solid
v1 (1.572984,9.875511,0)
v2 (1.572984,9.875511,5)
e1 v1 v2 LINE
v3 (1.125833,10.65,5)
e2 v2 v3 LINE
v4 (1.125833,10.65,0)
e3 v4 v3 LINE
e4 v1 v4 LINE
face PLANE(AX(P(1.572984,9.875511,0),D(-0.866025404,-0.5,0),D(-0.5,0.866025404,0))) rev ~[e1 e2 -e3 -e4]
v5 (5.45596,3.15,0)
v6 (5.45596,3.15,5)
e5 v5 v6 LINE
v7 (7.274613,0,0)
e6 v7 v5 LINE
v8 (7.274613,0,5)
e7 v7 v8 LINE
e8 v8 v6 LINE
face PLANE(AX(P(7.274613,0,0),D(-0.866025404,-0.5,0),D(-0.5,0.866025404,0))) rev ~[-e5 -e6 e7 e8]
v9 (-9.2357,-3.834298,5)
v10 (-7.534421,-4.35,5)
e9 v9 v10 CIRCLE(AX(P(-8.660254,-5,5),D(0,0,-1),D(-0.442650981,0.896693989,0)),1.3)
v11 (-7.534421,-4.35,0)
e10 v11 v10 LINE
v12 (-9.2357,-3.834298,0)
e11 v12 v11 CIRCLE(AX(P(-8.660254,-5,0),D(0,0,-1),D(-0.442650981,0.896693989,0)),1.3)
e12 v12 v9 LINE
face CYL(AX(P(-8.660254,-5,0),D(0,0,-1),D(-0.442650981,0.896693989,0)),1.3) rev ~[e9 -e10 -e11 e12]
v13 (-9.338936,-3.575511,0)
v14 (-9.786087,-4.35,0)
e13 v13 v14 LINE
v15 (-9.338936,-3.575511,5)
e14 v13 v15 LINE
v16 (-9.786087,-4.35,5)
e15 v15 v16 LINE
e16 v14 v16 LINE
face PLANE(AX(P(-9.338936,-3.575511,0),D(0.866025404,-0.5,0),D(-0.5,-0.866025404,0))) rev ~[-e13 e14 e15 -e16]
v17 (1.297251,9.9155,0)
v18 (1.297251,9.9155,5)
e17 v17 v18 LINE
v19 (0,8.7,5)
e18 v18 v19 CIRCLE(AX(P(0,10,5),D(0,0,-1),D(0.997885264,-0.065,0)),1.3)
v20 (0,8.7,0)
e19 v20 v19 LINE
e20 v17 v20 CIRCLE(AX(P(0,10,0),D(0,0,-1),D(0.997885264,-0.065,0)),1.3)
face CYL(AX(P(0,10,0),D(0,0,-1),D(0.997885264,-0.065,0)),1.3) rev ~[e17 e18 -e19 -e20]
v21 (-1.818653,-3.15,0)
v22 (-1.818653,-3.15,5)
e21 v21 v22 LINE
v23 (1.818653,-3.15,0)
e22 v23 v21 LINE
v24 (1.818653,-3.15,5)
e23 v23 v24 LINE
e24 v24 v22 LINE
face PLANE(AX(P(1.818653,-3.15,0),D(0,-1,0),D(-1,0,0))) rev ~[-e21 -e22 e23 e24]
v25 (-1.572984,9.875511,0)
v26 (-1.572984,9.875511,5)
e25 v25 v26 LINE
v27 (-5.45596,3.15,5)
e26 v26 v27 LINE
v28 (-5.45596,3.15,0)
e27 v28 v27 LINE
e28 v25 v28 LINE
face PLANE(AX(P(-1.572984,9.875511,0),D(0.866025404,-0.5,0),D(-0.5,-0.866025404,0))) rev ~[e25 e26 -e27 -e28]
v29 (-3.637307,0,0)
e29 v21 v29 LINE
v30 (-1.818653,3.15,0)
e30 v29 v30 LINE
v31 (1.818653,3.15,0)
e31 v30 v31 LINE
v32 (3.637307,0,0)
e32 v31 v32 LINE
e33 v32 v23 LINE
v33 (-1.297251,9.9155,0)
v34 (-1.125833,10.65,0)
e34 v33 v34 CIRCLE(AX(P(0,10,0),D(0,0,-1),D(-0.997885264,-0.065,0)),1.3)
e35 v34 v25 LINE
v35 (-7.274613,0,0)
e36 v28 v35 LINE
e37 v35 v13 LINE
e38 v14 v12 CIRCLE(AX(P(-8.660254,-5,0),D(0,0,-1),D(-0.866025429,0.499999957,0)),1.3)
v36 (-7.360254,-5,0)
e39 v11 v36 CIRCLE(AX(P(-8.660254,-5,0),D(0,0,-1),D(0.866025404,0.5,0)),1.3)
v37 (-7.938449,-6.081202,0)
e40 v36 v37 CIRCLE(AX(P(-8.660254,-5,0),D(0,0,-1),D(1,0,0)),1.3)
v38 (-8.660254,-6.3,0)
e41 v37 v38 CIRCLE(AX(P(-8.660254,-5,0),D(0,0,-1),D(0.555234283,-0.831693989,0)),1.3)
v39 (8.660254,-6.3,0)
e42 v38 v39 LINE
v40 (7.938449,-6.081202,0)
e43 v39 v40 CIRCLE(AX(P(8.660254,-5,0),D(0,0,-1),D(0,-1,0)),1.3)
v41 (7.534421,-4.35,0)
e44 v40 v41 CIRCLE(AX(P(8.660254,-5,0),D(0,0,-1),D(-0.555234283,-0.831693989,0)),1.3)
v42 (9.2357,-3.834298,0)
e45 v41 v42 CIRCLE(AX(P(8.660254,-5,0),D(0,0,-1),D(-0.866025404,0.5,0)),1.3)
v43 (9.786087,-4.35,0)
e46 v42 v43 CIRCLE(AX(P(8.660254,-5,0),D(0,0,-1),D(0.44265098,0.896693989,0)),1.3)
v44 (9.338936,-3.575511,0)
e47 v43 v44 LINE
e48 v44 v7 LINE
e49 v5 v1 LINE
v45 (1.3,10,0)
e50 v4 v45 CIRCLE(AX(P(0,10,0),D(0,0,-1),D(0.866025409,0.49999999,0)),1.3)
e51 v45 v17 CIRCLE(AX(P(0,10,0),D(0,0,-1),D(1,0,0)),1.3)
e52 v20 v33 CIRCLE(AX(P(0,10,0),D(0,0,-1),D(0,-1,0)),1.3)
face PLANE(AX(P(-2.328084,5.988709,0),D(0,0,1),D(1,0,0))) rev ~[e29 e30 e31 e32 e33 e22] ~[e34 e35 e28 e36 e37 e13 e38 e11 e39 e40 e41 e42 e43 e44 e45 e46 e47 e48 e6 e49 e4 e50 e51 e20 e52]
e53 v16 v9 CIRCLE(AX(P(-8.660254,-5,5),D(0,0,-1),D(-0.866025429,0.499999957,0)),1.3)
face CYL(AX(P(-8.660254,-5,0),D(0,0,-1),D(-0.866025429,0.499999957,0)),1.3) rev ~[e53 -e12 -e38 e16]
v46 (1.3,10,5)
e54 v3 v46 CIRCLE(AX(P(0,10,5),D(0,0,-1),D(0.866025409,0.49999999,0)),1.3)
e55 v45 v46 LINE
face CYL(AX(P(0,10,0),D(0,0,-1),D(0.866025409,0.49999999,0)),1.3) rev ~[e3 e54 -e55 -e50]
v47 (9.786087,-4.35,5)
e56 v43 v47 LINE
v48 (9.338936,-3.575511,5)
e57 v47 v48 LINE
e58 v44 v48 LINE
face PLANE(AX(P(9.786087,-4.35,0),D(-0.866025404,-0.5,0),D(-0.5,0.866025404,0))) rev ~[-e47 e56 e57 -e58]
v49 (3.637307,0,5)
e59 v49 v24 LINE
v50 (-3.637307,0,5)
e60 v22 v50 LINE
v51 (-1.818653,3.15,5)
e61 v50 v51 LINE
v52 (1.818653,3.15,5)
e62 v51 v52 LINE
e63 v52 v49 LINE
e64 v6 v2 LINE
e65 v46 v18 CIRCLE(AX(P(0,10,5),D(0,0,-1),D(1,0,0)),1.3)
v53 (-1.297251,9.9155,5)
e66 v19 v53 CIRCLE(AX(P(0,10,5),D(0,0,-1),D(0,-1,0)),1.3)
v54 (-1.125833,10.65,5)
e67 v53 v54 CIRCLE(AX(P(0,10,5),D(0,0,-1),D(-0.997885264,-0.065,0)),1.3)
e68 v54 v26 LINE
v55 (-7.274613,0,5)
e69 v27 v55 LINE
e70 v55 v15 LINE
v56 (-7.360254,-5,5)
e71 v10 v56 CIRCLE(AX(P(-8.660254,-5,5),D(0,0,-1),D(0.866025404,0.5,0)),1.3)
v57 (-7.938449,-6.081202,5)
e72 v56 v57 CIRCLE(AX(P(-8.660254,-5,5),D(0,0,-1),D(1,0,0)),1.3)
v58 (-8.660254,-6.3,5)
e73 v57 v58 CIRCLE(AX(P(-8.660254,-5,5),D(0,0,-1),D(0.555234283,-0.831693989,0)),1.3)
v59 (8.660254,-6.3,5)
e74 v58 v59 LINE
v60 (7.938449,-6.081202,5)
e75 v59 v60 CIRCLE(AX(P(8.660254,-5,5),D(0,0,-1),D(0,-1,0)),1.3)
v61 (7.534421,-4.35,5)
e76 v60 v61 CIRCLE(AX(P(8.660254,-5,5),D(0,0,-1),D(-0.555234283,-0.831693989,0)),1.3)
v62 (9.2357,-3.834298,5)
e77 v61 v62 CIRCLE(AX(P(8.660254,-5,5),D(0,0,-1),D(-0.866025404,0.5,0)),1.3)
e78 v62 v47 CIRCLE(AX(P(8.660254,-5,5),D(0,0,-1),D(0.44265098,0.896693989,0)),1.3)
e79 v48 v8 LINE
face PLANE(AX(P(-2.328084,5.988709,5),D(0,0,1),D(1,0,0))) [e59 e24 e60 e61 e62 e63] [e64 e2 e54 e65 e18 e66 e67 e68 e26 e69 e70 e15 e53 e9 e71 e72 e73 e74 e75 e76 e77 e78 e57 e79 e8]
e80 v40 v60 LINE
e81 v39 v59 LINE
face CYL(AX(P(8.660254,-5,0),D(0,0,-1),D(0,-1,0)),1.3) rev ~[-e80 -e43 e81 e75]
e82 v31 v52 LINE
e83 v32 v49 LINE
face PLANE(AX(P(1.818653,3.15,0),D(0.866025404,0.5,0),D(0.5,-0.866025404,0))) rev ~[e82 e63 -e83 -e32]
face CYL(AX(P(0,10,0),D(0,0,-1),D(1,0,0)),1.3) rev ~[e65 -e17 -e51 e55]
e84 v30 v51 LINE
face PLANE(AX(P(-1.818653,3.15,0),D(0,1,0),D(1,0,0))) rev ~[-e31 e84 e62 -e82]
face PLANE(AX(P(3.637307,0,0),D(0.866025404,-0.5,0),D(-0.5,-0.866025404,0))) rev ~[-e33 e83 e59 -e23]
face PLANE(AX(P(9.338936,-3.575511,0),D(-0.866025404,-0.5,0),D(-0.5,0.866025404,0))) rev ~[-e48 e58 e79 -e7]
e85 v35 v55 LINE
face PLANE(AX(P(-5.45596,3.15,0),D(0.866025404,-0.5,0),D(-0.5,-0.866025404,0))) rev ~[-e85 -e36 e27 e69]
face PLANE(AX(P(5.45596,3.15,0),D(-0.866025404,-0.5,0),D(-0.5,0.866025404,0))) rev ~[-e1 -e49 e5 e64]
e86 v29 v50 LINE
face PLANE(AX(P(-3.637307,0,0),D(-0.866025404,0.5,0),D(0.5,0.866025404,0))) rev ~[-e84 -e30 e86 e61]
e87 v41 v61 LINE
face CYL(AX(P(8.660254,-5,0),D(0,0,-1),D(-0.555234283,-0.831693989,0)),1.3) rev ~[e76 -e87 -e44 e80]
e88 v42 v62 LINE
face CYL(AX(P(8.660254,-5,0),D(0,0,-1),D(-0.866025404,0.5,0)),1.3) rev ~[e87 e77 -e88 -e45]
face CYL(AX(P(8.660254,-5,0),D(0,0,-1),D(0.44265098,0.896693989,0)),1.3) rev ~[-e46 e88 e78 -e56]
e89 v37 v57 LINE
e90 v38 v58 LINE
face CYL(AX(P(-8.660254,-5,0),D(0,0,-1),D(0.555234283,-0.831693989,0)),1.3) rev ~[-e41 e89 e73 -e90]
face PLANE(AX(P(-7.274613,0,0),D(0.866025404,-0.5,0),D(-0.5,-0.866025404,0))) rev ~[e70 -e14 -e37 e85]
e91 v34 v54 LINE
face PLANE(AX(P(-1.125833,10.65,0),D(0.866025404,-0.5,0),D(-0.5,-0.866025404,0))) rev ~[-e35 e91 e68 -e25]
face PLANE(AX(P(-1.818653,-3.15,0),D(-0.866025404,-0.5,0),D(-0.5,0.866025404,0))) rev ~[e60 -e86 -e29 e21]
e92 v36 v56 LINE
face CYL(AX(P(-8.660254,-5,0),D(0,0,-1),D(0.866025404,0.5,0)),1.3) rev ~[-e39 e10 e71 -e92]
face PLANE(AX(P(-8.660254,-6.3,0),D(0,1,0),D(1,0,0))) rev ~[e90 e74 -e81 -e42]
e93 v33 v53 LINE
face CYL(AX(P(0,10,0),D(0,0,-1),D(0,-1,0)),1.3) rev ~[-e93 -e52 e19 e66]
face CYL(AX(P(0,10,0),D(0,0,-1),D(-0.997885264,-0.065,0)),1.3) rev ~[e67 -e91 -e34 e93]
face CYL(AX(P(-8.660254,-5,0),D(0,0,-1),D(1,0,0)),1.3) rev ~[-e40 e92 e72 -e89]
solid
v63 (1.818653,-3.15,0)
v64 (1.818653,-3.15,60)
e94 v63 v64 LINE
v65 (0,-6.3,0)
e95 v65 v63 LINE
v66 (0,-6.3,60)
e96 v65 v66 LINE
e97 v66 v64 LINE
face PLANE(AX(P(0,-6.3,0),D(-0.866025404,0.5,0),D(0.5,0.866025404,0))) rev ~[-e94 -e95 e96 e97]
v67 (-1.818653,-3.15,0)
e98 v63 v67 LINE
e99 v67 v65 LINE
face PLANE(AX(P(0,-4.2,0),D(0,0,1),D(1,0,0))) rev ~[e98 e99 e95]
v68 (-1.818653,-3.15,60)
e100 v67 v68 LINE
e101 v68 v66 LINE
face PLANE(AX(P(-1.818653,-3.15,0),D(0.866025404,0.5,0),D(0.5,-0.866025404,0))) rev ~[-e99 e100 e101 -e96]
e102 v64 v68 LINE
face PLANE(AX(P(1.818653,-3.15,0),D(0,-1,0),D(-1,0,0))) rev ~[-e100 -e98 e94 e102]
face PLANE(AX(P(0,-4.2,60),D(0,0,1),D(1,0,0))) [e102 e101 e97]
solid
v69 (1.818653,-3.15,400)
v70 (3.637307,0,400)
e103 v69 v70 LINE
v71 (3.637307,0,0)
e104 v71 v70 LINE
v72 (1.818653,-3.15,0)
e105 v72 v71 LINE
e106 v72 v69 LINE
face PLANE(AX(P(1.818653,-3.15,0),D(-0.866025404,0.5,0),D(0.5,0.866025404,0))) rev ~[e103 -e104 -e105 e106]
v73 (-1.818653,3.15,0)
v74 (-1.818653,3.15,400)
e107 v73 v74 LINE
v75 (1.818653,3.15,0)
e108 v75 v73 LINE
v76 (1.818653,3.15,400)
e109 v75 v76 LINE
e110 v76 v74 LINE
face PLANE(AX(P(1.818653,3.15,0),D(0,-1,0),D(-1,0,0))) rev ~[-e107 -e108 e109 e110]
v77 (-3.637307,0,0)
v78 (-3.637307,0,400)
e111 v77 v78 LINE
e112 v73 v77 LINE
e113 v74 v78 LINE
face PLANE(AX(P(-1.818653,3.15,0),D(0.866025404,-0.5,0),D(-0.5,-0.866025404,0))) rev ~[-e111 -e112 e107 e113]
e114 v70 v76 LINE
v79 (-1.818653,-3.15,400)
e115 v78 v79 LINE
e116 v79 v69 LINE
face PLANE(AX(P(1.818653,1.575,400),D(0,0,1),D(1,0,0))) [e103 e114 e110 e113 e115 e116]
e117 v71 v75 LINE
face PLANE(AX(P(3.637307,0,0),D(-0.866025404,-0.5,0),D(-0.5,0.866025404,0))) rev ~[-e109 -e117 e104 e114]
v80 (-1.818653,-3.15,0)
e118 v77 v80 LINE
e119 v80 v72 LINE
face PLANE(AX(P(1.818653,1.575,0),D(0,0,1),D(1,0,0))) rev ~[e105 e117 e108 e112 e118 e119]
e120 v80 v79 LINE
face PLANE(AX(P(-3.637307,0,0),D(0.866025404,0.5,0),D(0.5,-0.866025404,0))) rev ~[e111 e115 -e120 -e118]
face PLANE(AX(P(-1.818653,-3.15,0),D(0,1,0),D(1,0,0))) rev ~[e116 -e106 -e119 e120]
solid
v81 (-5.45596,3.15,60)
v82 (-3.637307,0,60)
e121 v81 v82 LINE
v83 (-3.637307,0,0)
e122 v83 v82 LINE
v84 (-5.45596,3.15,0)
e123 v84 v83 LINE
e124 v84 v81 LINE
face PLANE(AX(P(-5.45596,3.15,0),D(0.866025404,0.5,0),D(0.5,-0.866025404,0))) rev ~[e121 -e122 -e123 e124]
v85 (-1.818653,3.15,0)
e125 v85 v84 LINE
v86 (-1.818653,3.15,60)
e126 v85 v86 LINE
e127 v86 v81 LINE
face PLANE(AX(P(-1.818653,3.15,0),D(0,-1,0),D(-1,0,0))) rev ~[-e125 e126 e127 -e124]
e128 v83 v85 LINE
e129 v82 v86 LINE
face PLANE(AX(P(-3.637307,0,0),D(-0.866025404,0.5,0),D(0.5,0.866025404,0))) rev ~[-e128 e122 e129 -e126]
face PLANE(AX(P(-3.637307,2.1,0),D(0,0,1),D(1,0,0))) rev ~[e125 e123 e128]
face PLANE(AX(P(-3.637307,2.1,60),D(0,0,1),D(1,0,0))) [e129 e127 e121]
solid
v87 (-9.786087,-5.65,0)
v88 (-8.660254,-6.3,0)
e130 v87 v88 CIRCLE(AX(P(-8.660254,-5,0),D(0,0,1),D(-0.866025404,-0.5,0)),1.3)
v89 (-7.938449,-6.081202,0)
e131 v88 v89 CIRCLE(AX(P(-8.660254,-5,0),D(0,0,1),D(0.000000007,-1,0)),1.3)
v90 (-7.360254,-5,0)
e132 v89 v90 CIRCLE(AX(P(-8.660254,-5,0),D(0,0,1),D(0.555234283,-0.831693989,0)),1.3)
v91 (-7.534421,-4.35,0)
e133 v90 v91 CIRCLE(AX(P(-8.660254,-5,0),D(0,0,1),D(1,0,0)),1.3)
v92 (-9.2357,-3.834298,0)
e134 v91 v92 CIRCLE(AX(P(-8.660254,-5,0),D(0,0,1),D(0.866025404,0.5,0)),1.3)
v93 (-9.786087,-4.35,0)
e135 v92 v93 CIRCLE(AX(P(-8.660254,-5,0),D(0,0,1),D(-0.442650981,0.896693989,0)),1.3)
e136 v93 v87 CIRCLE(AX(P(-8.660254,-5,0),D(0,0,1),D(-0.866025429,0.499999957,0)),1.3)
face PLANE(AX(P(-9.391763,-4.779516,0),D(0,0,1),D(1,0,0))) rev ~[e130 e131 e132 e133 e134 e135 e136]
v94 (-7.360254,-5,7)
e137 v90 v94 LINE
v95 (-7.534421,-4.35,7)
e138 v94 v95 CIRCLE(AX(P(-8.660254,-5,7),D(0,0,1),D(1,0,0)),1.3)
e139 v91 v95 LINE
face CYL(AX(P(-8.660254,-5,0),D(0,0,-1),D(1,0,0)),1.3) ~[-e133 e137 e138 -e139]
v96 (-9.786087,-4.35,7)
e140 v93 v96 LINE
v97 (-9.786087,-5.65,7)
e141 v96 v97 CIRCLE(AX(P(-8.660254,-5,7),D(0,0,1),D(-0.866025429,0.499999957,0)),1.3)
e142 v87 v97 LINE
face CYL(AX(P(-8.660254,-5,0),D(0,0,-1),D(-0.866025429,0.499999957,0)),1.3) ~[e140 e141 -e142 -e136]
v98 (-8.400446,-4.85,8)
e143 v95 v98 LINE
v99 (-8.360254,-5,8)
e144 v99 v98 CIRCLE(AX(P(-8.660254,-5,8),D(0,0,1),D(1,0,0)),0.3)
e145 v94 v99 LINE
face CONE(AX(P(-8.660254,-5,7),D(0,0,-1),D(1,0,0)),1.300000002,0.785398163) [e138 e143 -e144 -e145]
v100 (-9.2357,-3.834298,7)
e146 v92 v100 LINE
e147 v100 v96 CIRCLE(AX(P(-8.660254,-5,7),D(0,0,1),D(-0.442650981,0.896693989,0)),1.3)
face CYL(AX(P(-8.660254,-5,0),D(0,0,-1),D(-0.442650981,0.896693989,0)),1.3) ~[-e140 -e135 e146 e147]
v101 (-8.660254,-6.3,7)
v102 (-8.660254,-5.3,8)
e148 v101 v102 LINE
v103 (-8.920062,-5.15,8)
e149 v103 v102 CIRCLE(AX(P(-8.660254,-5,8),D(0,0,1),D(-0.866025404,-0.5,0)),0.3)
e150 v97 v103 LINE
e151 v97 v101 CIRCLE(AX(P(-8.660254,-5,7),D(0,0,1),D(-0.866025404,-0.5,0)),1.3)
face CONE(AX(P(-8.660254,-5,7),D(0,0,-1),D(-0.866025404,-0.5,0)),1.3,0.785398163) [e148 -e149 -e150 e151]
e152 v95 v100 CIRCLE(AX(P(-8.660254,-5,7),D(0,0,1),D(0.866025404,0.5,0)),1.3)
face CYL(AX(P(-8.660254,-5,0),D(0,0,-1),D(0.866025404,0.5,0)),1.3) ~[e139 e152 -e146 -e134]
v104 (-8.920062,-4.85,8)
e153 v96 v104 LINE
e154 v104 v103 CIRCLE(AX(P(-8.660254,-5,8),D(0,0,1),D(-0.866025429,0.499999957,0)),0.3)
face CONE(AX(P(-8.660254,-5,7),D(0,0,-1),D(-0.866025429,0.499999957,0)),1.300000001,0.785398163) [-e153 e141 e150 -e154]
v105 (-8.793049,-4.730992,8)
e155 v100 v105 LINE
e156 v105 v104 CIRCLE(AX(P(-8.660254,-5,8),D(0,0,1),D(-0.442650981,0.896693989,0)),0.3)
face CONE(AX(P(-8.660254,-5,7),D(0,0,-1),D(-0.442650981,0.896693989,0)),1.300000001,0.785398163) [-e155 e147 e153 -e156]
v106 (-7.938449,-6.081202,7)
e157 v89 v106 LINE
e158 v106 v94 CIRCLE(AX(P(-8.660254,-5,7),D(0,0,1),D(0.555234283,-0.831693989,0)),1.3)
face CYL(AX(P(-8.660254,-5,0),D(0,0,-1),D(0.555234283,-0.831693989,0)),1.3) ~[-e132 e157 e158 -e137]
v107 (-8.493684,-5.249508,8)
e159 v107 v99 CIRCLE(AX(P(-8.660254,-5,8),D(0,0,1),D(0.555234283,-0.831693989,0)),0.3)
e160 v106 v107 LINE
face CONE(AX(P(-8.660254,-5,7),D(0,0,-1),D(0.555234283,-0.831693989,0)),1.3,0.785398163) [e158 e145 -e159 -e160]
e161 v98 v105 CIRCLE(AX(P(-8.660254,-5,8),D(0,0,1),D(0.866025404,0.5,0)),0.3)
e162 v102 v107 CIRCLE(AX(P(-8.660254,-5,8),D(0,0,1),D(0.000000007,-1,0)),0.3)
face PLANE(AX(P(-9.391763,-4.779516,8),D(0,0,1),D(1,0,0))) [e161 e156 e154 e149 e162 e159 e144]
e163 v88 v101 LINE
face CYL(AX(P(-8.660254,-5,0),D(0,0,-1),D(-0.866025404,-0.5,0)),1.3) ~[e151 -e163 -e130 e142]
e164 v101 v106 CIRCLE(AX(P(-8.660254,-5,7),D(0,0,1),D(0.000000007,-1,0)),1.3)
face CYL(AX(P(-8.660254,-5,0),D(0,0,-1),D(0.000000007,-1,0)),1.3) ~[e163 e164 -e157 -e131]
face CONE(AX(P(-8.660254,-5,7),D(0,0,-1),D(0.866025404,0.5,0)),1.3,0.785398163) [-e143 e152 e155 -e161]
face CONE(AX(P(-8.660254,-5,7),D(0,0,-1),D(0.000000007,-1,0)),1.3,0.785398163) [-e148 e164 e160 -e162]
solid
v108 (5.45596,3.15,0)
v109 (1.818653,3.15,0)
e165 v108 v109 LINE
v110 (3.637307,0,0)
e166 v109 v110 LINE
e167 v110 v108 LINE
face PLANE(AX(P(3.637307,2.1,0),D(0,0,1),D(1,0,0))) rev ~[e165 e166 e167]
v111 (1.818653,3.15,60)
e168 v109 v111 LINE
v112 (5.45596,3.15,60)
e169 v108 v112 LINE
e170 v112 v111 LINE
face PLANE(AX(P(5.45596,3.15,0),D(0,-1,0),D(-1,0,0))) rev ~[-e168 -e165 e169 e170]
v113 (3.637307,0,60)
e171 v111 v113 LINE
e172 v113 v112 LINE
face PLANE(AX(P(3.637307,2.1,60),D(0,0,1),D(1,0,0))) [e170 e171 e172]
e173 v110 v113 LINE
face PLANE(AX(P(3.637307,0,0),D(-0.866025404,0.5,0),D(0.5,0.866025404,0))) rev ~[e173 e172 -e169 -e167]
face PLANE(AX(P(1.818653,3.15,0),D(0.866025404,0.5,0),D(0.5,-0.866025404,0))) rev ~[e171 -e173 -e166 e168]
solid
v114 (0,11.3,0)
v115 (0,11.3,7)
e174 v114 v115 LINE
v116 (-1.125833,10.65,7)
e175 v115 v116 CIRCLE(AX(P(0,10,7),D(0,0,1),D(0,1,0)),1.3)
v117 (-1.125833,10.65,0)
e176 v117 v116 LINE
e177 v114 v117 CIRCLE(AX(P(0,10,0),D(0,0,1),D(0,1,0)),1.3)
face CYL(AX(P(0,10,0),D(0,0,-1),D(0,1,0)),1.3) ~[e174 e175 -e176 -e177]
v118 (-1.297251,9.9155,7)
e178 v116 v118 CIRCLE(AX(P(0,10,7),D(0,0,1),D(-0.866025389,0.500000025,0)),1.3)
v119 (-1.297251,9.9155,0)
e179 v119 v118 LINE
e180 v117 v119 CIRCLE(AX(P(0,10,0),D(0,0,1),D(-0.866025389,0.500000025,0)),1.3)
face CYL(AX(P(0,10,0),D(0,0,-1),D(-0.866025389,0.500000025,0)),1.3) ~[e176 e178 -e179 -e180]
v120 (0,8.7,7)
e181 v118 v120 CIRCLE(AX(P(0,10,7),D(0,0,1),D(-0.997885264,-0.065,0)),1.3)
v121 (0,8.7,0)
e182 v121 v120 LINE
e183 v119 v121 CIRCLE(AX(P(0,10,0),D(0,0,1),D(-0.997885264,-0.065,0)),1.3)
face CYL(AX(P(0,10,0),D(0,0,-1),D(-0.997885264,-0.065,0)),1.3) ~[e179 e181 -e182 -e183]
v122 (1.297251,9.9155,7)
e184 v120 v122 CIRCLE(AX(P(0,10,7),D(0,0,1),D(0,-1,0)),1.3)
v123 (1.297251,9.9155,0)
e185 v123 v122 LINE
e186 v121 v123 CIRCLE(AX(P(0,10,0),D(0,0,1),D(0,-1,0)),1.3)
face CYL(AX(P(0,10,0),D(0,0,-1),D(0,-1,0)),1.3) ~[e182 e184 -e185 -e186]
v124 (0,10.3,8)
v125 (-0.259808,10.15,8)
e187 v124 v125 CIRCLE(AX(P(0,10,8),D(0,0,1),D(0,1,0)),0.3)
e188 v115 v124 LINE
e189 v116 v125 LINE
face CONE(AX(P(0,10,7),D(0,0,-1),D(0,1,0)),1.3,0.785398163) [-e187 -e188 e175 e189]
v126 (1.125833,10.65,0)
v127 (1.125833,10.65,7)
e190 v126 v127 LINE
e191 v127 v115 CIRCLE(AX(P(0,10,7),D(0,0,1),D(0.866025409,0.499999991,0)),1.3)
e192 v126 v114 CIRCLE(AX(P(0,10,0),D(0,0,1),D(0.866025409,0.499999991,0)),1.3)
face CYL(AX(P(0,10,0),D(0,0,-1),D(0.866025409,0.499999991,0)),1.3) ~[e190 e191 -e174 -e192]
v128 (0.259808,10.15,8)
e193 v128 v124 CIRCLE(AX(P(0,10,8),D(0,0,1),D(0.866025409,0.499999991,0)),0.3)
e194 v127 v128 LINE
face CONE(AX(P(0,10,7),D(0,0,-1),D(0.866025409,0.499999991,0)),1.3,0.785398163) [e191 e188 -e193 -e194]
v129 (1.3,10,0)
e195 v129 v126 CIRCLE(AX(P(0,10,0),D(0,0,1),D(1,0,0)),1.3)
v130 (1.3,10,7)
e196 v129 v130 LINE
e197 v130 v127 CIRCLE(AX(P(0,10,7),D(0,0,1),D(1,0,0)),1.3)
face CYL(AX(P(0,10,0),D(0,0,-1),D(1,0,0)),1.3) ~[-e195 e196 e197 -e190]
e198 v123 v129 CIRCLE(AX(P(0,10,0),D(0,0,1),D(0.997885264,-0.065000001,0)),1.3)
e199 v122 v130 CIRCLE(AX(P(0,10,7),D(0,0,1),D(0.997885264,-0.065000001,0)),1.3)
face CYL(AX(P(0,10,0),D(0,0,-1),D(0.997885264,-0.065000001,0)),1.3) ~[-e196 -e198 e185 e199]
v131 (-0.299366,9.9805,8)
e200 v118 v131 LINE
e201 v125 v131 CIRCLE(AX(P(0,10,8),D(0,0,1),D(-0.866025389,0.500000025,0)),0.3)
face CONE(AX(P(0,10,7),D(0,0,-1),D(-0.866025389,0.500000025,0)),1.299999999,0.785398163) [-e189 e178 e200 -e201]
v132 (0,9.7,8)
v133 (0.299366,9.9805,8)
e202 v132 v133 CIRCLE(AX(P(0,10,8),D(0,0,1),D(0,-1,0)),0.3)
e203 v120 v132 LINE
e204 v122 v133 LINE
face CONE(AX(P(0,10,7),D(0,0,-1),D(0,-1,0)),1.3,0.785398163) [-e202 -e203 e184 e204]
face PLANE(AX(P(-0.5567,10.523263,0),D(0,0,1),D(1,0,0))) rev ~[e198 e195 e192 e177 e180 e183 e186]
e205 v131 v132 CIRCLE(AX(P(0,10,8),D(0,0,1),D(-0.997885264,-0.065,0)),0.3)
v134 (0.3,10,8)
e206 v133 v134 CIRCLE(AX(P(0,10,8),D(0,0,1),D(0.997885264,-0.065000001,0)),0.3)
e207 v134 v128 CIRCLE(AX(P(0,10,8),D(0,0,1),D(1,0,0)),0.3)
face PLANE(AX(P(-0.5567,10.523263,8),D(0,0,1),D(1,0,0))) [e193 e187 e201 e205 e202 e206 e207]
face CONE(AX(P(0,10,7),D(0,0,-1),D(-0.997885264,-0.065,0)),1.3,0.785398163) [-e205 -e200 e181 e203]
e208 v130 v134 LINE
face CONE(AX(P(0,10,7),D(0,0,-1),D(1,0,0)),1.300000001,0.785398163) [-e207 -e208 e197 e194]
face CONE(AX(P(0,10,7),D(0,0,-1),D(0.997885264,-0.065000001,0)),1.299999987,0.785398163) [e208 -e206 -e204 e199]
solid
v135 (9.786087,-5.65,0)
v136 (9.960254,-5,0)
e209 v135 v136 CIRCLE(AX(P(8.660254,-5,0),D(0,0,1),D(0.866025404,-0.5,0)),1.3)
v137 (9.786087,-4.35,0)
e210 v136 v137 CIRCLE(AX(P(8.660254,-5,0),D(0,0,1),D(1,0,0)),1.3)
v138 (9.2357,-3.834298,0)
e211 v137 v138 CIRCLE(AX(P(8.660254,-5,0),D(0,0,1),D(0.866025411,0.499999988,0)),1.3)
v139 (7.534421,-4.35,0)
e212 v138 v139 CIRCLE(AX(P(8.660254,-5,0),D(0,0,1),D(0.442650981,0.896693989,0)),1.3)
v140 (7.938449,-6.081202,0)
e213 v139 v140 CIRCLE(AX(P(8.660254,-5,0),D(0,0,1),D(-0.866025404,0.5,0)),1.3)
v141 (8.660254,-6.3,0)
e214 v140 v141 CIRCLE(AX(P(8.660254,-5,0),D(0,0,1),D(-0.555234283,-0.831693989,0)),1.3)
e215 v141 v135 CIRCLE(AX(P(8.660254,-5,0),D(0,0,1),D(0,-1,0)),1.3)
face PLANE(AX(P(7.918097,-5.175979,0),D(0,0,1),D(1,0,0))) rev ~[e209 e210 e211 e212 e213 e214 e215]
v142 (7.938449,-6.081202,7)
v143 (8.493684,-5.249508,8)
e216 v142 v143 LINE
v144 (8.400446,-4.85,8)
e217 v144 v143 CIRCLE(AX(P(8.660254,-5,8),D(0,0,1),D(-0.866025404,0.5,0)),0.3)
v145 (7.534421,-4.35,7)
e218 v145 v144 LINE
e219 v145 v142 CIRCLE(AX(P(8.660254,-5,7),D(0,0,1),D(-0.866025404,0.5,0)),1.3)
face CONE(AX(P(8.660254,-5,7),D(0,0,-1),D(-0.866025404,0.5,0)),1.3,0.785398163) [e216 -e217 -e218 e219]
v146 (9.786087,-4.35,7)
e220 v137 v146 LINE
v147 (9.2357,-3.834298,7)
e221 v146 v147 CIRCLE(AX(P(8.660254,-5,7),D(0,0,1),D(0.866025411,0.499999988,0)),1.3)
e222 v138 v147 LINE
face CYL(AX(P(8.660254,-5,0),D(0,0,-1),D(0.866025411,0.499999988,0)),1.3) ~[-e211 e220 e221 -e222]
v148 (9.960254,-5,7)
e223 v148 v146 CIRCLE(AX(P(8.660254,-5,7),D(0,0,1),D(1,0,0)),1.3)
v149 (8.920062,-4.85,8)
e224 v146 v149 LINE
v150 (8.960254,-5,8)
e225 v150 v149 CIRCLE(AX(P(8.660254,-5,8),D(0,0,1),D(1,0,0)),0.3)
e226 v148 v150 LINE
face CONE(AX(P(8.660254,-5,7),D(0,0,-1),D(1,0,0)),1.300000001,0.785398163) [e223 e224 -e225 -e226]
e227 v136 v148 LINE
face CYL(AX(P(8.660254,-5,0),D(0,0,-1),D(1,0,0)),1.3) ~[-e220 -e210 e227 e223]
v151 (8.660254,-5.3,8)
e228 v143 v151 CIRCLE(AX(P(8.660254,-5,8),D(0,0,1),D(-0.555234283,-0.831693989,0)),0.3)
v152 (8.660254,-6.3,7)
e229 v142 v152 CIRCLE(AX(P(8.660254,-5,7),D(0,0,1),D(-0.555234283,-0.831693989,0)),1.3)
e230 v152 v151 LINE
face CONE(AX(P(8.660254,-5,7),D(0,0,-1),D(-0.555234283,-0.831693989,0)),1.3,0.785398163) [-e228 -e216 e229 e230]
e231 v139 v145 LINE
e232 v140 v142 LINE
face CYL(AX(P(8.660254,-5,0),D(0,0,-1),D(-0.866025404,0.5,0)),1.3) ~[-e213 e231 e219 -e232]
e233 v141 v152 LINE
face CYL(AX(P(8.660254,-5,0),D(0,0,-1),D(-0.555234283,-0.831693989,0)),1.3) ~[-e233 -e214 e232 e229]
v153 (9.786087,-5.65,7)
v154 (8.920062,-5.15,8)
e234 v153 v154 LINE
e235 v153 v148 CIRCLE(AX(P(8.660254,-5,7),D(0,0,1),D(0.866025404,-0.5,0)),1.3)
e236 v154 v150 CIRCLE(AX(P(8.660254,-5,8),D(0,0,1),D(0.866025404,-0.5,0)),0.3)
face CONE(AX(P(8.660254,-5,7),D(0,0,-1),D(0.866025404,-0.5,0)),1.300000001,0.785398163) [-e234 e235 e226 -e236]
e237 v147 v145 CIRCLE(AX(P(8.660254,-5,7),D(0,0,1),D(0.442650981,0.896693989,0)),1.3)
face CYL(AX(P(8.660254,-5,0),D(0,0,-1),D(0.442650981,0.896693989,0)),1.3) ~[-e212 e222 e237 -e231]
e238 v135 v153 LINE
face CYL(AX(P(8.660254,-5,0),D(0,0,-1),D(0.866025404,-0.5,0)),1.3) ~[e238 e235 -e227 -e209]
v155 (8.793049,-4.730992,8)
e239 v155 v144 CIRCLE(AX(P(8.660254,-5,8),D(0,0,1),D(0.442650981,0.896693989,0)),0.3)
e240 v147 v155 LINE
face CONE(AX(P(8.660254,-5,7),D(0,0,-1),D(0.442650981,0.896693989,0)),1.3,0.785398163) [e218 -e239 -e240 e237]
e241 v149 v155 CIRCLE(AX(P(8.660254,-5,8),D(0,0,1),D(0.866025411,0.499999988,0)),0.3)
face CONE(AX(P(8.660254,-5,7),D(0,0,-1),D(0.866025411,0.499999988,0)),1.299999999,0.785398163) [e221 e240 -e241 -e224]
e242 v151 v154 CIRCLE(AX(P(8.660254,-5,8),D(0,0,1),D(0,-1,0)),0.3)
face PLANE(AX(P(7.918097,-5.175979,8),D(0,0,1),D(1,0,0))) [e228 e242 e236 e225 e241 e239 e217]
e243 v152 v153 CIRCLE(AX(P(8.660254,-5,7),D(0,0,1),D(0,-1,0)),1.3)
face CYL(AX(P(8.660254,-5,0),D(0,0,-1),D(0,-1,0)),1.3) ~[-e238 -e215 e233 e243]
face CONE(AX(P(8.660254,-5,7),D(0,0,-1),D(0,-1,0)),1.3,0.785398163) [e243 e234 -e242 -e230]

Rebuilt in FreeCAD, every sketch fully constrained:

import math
import FreeCAD as App
import Part
import Sketcher
from FreeCAD import Vector
Q = App.Units.Quantity


def edges_at(feature, points):
    """Names of the edges that pass closest to the given points."""
    edges = feature.Shape.Edges
    near = lambda p: min(range(len(edges)), key=lambda i: edges[i].distToShape(Part.Vertex(*p))[0])
    return sorted({f"Edge{near(p) + 1}" for p in points})


def add_polygon(sketch, points):
    """Adds a closed chain of lines whose ends are joined by coincident constraints."""
    first, n = sketch.GeometryCount, len(points)
    for a, b in zip(points, points[1:] + points[:1]):
        sketch.addGeometry(Part.LineSegment(App.Vector(*a, 0), App.Vector(*b, 0)), False)
    for i in range(n):
        sketch.addConstraint(Sketcher.Constraint("Coincident", first + i, 2, first + (i + 1) % n, 1))

doc = App.newDocument("Part")
body = doc.addObject("PartDesign::Body", "Body")

sketch1 = body.newObject("Sketcher::SketchObject", "Sketch")
sketch1.AttachmentSupport = (doc.getObject("XY_Plane"), [""])
sketch1.MapMode = "FlatFace"
sketch1.addGeometry(Part.LineSegment(Vector(7.27, 0, 0), Vector(5.46, 3.15, 0)), False)
sketch1.addGeometry(Part.LineSegment(Vector(5.46, 3.15, 0), Vector(1.57, 9.88, 0)), False)
sketch1.addGeometry(Part.LineSegment(Vector(1.57, 9.88, 0), Vector(1.13, 10.65, 0)), False)
sketch1.addGeometry(Part.ArcOfCircle(Part.Circle(Vector(0, 10, 0), Vector(0, 0, 1), 1.3), math.radians(0), math.radians(30)), False)
sketch1.addGeometry(Part.ArcOfCircle(Part.Circle(Vector(0, 10, 0), Vector(0, 0, 1), 1.3), math.radians(-3.73), math.radians(0)), False)
sketch1.addGeometry(Part.ArcOfCircle(Part.Circle(Vector(0, 10, 0), Vector(0, 0, 1), 1.3), math.radians(-90), math.radians(-4)), False)
sketch1.addGeometry(Part.ArcOfCircle(Part.Circle(Vector(0, 10, 0), Vector(0, 0, 1), 1.3), math.radians(-176), math.radians(-90)), False)
sketch1.addGeometry(Part.ArcOfCircle(Part.Circle(Vector(0, 10, 0), Vector(0, 0, 1), 1.3), math.radians(150), math.radians(184)), False)
sketch1.addGeometry(Part.LineSegment(Vector(-1.13, 10.65, 0), Vector(-1.57, 9.88, 0)), False)
sketch1.addGeometry(Part.LineSegment(Vector(-1.57, 9.88, 0), Vector(-5.46, 3.15, 0)), False)
sketch1.addGeometry(Part.LineSegment(Vector(-5.46, 3.15, 0), Vector(-7.27, 0, 0)), False)
sketch1.addGeometry(Part.LineSegment(Vector(-7.27, 0, 0), Vector(-9.34, -3.58, 0)), False)
sketch1.addGeometry(Part.LineSegment(Vector(-9.34, -3.58, 0), Vector(-9.79, -4.35, 0)), False)
sketch1.addGeometry(Part.ArcOfCircle(Part.Circle(Vector(-8.66, -5, 0), Vector(0, 0, 1), 1.3), math.radians(116), math.radians(150)), False)
sketch1.addGeometry(Part.ArcOfCircle(Part.Circle(Vector(-8.66, -5, 0), Vector(0, 0, 1), 1.3), math.radians(30), math.radians(116)), False)
sketch1.addGeometry(Part.ArcOfCircle(Part.Circle(Vector(-8.66, -5, 0), Vector(0, 0, 1), 1.3), math.radians(0), math.radians(30)), False)
sketch1.addGeometry(Part.ArcOfCircle(Part.Circle(Vector(-8.66, -5, 0), Vector(0, 0, 1), 1.3), math.radians(-56), math.radians(0)), False)
sketch1.addGeometry(Part.ArcOfCircle(Part.Circle(Vector(-8.66, -5, 0), Vector(0, 0, 1), 1.3), math.radians(-90), math.radians(-56)), False)
sketch1.addGeometry(Part.LineSegment(Vector(-8.66, -6.3, 0), Vector(8.66, -6.3, 0)), False)
sketch1.addGeometry(Part.ArcOfCircle(Part.Circle(Vector(8.66, -5, 0), Vector(0, 0, 1), 1.3), math.radians(-124), math.radians(-90)), False)
sketch1.addGeometry(Part.ArcOfCircle(Part.Circle(Vector(8.66, -5, 0), Vector(0, 0, 1), 1.3), math.radians(150), math.radians(236)), False)
sketch1.addGeometry(Part.ArcOfCircle(Part.Circle(Vector(8.66, -5, 0), Vector(0, 0, 1), 1.3), math.radians(64), math.radians(150)), False)
sketch1.addGeometry(Part.ArcOfCircle(Part.Circle(Vector(8.66, -5, 0), Vector(0, 0, 1), 1.3), math.radians(30), math.radians(64)), False)
sketch1.addGeometry(Part.LineSegment(Vector(9.79, -4.35, 0), Vector(9.34, -3.58, 0)), False)
sketch1.addGeometry(Part.LineSegment(Vector(9.34, -3.58, 0), Vector(7.27, 0, 0)), False)
add_polygon(sketch1, [(1.82, 3.15), (3.64, 0), (1.82, -3.15), (-1.82, -3.15), (-3.64, 0), (-1.82, 3.15)])
sketch1.addConstraint([
    Sketcher.Constraint("Coincident", 0, 2, 1, 1),
    Sketcher.Constraint("Coincident", 1, 2, 2, 1),
    Sketcher.Constraint("Tangent", 2, 2, 3, 2),
    Sketcher.Constraint("Tangent", 3, 1, 4, 2),
    Sketcher.Constraint("Tangent", 4, 1, 5, 2),
    Sketcher.Constraint("Tangent", 5, 1, 6, 2),
    Sketcher.Constraint("Tangent", 6, 1, 7, 2),
    Sketcher.Constraint("Tangent", 7, 1, 8, 1),
    Sketcher.Constraint("Coincident", 8, 2, 9, 1),
    Sketcher.Constraint("Coincident", 9, 2, 10, 1),
    Sketcher.Constraint("Coincident", 10, 2, 11, 1),
    Sketcher.Constraint("Coincident", 11, 2, 12, 1),
    Sketcher.Constraint("Tangent", 12, 2, 13, 2),
    Sketcher.Constraint("Tangent", 13, 1, 14, 2),
    Sketcher.Constraint("Tangent", 14, 1, 15, 2),
    Sketcher.Constraint("Tangent", 15, 1, 16, 2),
    Sketcher.Constraint("Tangent", 16, 1, 17, 2),
    Sketcher.Constraint("Tangent", 17, 1, 18, 1),
    Sketcher.Constraint("Tangent", 18, 2, 19, 2),
    Sketcher.Constraint("Tangent", 19, 1, 20, 2),
    Sketcher.Constraint("Tangent", 20, 1, 21, 2),
    Sketcher.Constraint("Tangent", 21, 1, 22, 2),
    Sketcher.Constraint("Tangent", 22, 1, 23, 1),
    Sketcher.Constraint("Coincident", 23, 2, 24, 1),
    Sketcher.Constraint("Coincident", 24, 2, 0, 1),
    Sketcher.Constraint("Horizontal", 18),
    Sketcher.Constraint("Horizontal", 27),
    Sketcher.Constraint("Horizontal", 30),
    Sketcher.Constraint("Coincident", 5, 3, 3, 3),
    Sketcher.Constraint("Coincident", 7, 3, 3, 3),
    Sketcher.Constraint("Coincident", 15, 3, 13, 3),
    Sketcher.Constraint("Coincident", 17, 3, 13, 3),
    Sketcher.Constraint("Coincident", 21, 3, 19, 3),
    Sketcher.Constraint("Equal", 7, 13),
    Sketcher.Constraint("Equal", 17, 19),
    Sketcher.Constraint("Equal", 21, 22),
    Sketcher.Constraint("Symmetric", 10, 2, 24, 2, -1, 1),
    Sketcher.Constraint("Symmetric", 25, 2, 28, 2, -1, 1),
    Sketcher.Constraint("Symmetric", 26, 2, 29, 2, -1, 1),
    Sketcher.Constraint("Symmetric", 4, 1, 6, 1, -2),
    Sketcher.Constraint("Symmetric", 1, 2, 8, 2, -2),
    Sketcher.Constraint("Symmetric", 0, 2, 9, 2, -2),
    Sketcher.Constraint("Symmetric", 16, 1, 19, 1, -2),
    Sketcher.Constraint("Symmetric", 11, 2, 23, 2, -2),
    Sketcher.Constraint("PointOnObject", 5, 1, -2),
    Sketcher.Constraint("PointOnObject", 10, 2, -1),
    Sketcher.Constraint("PointOnObject", 25, 2, -1),
    Sketcher.Constraint("Parallel", 0, 1),
    Sketcher.Constraint("Parallel", 1, 2),
    Sketcher.Constraint("Parallel", 10, 11),
    Sketcher.Constraint("Parallel", 11, 12),
    Sketcher.Constraint("Parallel", 24, 25),
    Sketcher.Constraint("Parallel", 12, 26),
    Sketcher.Constraint("Parallel", 25, 28),
    Sketcher.Constraint("Horizontal", 7, 3, 3, 1),
    Sketcher.Constraint("Horizontal", 12, 2, 14, 1),
    Sketcher.Constraint("Horizontal", 22, 3, 15, 1),
    Sketcher.Constraint("Horizontal", 14, 1, 20, 1),
    Sketcher.Constraint("Horizontal", 13, 1, 21, 1),
    Sketcher.Constraint("Horizontal", 9, 2, 29, 2),
    Sketcher.Constraint("Equal", 8, 12),
    Sketcher.Constraint("Radius", 3, 1.3),
    Sketcher.Constraint("Angle", 0, Q("120 deg")),
    Sketcher.Constraint("DistanceY", -1, 1, 3, 3, 10.0),
    Sketcher.Constraint("DistanceY", 13, 3, -1, 1, 5.0),
    Sketcher.Constraint("DistanceY", 9, 2, 7, 1, 7.5),
    Sketcher.Constraint("DistanceY", -1, 1, 4, 1, 9.9155),
    Sketcher.Constraint("DistanceX", 13, 1, -1, 1, 9.2357),
    Sketcher.Constraint("DistanceX", 26, 2, 19, 3, 6.841601),
    Sketcher.Constraint("Distance", 1, 7.765951),
    Sketcher.Constraint("DistanceX", 16, 1, -1, 1, 7.938449),
])
pad1 = body.newObject("PartDesign::Pad", "Pad")
pad1.Profile = sketch1
pad1.Length = 5
body2 = doc.addObject("PartDesign::Body", "Body001")

sketch2 = body2.newObject("Sketcher::SketchObject", "Sketch001")
sketch2.AttachmentSupport = (doc.getObject("XY_Plane001"), [""])
sketch2.MapMode = "FlatFace"
add_polygon(sketch2, [(-5.5, 3.1), (-3.6, 0), (-1.8, 3.1)])
sketch2.addConstraint([
    Sketcher.Constraint("Horizontal", 2),
    Sketcher.Constraint("PointOnObject", 0, 2, -1),
    Sketcher.Constraint("Equal", 0, 1),
    Sketcher.Constraint("Angle", 0, Q("-60 deg")),
    Sketcher.Constraint("DistanceY", -1, 1, 1, 2, 3.15),
    Sketcher.Constraint("DistanceX", 2, 2, -1, 1, 5.45596),
])
pad2 = body2.newObject("PartDesign::Pad", "Pad001")
pad2.Profile = sketch2
pad2.Length = 60
body3 = doc.addObject("PartDesign::Body", "Body002")

sketch3 = body3.newObject("Sketcher::SketchObject", "Sketch002")
sketch3.AttachmentSupport = (doc.getObject("XY_Plane002"), [""])
sketch3.MapMode = "FlatFace"
add_polygon(sketch3, [(1.8, -3.1), (-1.8, -3.1), (0, -6.3)])
sketch3.addConstraint([
    Sketcher.Constraint("Horizontal", 0),
    Sketcher.Constraint("PointOnObject", 1, 2, -2),
    Sketcher.Constraint("Equal", 1, 2),
    Sketcher.Constraint("Angle", 1, Q("-60 deg")),
    Sketcher.Constraint("DistanceY", 1, 2, -1, 1, 6.3),
    Sketcher.Constraint("DistanceY", 0, 2, -1, 1, 3.15),
])
pad3 = body3.newObject("PartDesign::Pad", "Pad002")
pad3.Profile = sketch3
pad3.Length = 60
body4 = doc.addObject("PartDesign::Body", "Body003")

sketch4 = body4.newObject("Sketcher::SketchObject", "Sketch003")
sketch4.AttachmentSupport = (doc.getObject("XY_Plane003"), [""])
sketch4.MapMode = "FlatFace"
add_polygon(sketch4, [(5.5, 3.1), (1.8, 3.1), (3.6, 0)])
sketch4.addConstraint([
    Sketcher.Constraint("Horizontal", 0),
    Sketcher.Constraint("PointOnObject", 1, 2, -1),
    Sketcher.Constraint("Equal", 1, 2),
    Sketcher.Constraint("Angle", 1, Q("-60 deg")),
    Sketcher.Constraint("DistanceY", -1, 1, 0, 2, 3.15),
    Sketcher.Constraint("DistanceX", -1, 1, 2, 2, 5.45596),
])
pad4 = body4.newObject("PartDesign::Pad", "Pad003")
pad4.Profile = sketch4
pad4.Length = 60
body5 = doc.addObject("PartDesign::Body", "Body004")

sketch5 = body5.newObject("Sketcher::SketchObject", "Sketch004")
sketch5.AttachmentSupport = (doc.getObject("XY_Plane004"), [""])
sketch5.MapMode = "FlatFace"
add_polygon(sketch5, [(1.8, 3.1), (-1.8, 3.1), (-3.6, 0), (-1.8, -3.1), (1.8, -3.1), (3.6, 0)])
sketch5.addConstraint([
    Sketcher.Constraint("Horizontal", 0),
    Sketcher.Constraint("Horizontal", 3),
    Sketcher.Constraint("Symmetric", 0, 2, 3, 2, -1, 1),
    Sketcher.Constraint("Symmetric", 1, 2, 4, 2, -1, 1),
    Sketcher.Constraint("PointOnObject", 1, 2, -1),
    Sketcher.Constraint("Parallel", 2, 5),
    Sketcher.Constraint("Vertical", 0, 2, 2, 2),
    Sketcher.Constraint("Angle", 1, Q("-120 deg")),
    Sketcher.Constraint("DistanceY", 2, 2, 0, 2, 6.3),
    Sketcher.Constraint("DistanceX", 0, 2, 0, 1, 3.637307),
])
pad5 = body5.newObject("PartDesign::Pad", "Pad004")
pad5.Profile = sketch5
pad5.Length = 400
body6 = doc.addObject("PartDesign::Body", "Body005")

sketch6 = body6.newObject("Sketcher::SketchObject", "Sketch005")
sketch6.AttachmentSupport = (doc.getObject("XY_Plane005"), [""])
sketch6.MapMode = "FlatFace"
sketch6.addGeometry([
    Part.ArcOfCircle(Part.Circle(Vector(0, 10, 0), Vector(0, 0, 1), 1.3), math.radians(90), math.radians(150)),
    Part.ArcOfCircle(Part.Circle(Vector(0, 10, 0), Vector(0, 0, 1), 1.3), math.radians(150), math.radians(184)),
    Part.ArcOfCircle(Part.Circle(Vector(0, 10, 0), Vector(0, 0, 1), 1.3), math.radians(-176), math.radians(-90)),
    Part.ArcOfCircle(Part.Circle(Vector(0, 10, 0), Vector(0, 0, 1), 1.3), math.radians(-90), math.radians(-4)),
    Part.ArcOfCircle(Part.Circle(Vector(0, 10, 0), Vector(0, 0, 1), 1.3), math.radians(-3.73), math.radians(0)),
    Part.ArcOfCircle(Part.Circle(Vector(0, 10, 0), Vector(0, 0, 1), 1.3), math.radians(0), math.radians(30)),
    Part.ArcOfCircle(Part.Circle(Vector(0, 10, 0), Vector(0, 0, 1), 1.3), math.radians(30), math.radians(90)),
], False)
sketch6.addConstraint([
    Sketcher.Constraint("Tangent", 0, 2, 1, 1),
    Sketcher.Constraint("Tangent", 1, 2, 2, 1),
    Sketcher.Constraint("Tangent", 2, 2, 3, 1),
    Sketcher.Constraint("Tangent", 3, 2, 4, 1),
    Sketcher.Constraint("Tangent", 4, 2, 5, 1),
    Sketcher.Constraint("Tangent", 5, 2, 6, 1),
    Sketcher.Constraint("Tangent", 6, 2, 0, 1),
    Sketcher.Constraint("Coincident", 2, 3, 0, 3),
    Sketcher.Constraint("Coincident", 4, 3, 0, 3),
    Sketcher.Constraint("Symmetric", 1, 2, 3, 2, -2),
    Sketcher.Constraint("PointOnObject", 2, 2, -2),
    Sketcher.Constraint("PointOnObject", 6, 2, -2),
    Sketcher.Constraint("Horizontal", 6, 3, 4, 2),
    Sketcher.Constraint("Horizontal", 0, 2, 5, 2),
    Sketcher.Constraint("Radius", 0, 1.3),
    Sketcher.Constraint("DistanceY", -1, 1, 0, 3, 10.0),
    Sketcher.Constraint("DistanceY", -1, 1, 0, 2, 10.65),
    Sketcher.Constraint("DistanceY", -1, 1, 1, 2, 9.9155),
])
pad6 = body6.newObject("PartDesign::Pad", "Pad005")
pad6.Profile = sketch6
pad6.Length = 8
doc.recompute()

chamfer = body6.newObject("PartDesign::Chamfer", "Chamfer")
chamfer.Base = (pad6, edges_at(pad6, [(-1.266, 10.295, 8)]))
chamfer.Size = 1
body7 = doc.addObject("PartDesign::Body", "Body006")

sketch7 = body7.newObject("Sketcher::SketchObject", "Sketch006")
sketch7.AttachmentSupport = (doc.getObject("XY_Plane006"), [""])
sketch7.MapMode = "FlatFace"
sketch7.addGeometry([
    Part.ArcOfCircle(Part.Circle(Vector(-8.7, -5, 0), Vector(0, 0, 1), 1.3), math.radians(116), math.radians(150)),
    Part.ArcOfCircle(Part.Circle(Vector(-8.7, -5, 0), Vector(0, 0, 1), 1.3), math.radians(150), math.radians(210)),
    Part.ArcOfCircle(Part.Circle(Vector(-8.7, -5, 0), Vector(0, 0, 1), 1.3), math.radians(-150), math.radians(-90)),
    Part.ArcOfCircle(Part.Circle(Vector(-8.7, -5, 0), Vector(0, 0, 1), 1.3), math.radians(-90), math.radians(-56)),
    Part.ArcOfCircle(Part.Circle(Vector(-8.7, -5, 0), Vector(0, 0, 1), 1.3), math.radians(-56), math.radians(0)),
    Part.ArcOfCircle(Part.Circle(Vector(-8.7, -5, 0), Vector(0, 0, 1), 1.3), math.radians(0), math.radians(30)),
    Part.ArcOfCircle(Part.Circle(Vector(-8.7, -5, 0), Vector(0, 0, 1), 1.3), math.radians(30), math.radians(116)),
], False)
sketch7.addConstraint([
    Sketcher.Constraint("Tangent", 0, 2, 1, 1),
    Sketcher.Constraint("Tangent", 1, 2, 2, 1),
    Sketcher.Constraint("Tangent", 2, 2, 3, 1),
    Sketcher.Constraint("Tangent", 3, 2, 4, 1),
    Sketcher.Constraint("Tangent", 4, 2, 5, 1),
    Sketcher.Constraint("Tangent", 5, 2, 6, 1),
    Sketcher.Constraint("Tangent", 6, 2, 0, 1),
    Sketcher.Constraint("Coincident", 2, 3, 0, 3),
    Sketcher.Constraint("Coincident", 4, 3, 0, 3),
    Sketcher.Constraint("Horizontal", 6, 3, 4, 2),
    Sketcher.Constraint("Horizontal", 0, 2, 5, 2),
    Sketcher.Constraint("Vertical", 0, 2, 1, 2),
    Sketcher.Constraint("Vertical", 6, 3, 2, 2),
    Sketcher.Constraint("Radius", 0, 1.3),
    Sketcher.Constraint("DistanceY", 0, 3, -1, 1, 5.0),
    Sketcher.Constraint("DistanceY", 1, 2, 0, 2, 1.3),
    Sketcher.Constraint("DistanceX", 6, 2, -1, 1, 9.2357),
    Sketcher.Constraint("DistanceX", 3, 2, -1, 1, 7.938449),
    Sketcher.Constraint("DistanceX", 5, 2, -1, 1, 7.534421),
])
pad7 = body7.newObject("PartDesign::Pad", "Pad006")
pad7.Profile = sketch7
pad7.Length = 8
doc.recompute()

chamfer2 = body7.newObject("PartDesign::Chamfer", "Chamfer001")
chamfer2.Base = (pad7, edges_at(pad7, [(-9.96, -5, 8)]))
chamfer2.Size = 1
body8 = doc.addObject("PartDesign::Body", "Body007")

sketch8 = body8.newObject("Sketcher::SketchObject", "Sketch007")
sketch8.AttachmentSupport = (doc.getObject("XY_Plane007"), [""])
sketch8.MapMode = "FlatFace"
sketch8.addGeometry([
    Part.ArcOfCircle(Part.Circle(Vector(8.7, -5, 0), Vector(0, 0, 1), 1.3), math.radians(150), math.radians(236)),
    Part.ArcOfCircle(Part.Circle(Vector(8.7, -5, 0), Vector(0, 0, 1), 1.3), math.radians(-124), math.radians(-90)),
    Part.ArcOfCircle(Part.Circle(Vector(8.7, -5, 0), Vector(0, 0, 1), 1.3), math.radians(-90), math.radians(-30)),
    Part.ArcOfCircle(Part.Circle(Vector(8.7, -5, 0), Vector(0, 0, 1), 1.3), math.radians(-30), math.radians(0)),
    Part.ArcOfCircle(Part.Circle(Vector(8.7, -5, 0), Vector(0, 0, 1), 1.3), math.radians(0), math.radians(30)),
    Part.ArcOfCircle(Part.Circle(Vector(8.7, -5, 0), Vector(0, 0, 1), 1.3), math.radians(30), math.radians(64)),
    Part.ArcOfCircle(Part.Circle(Vector(8.7, -5, 0), Vector(0, 0, 1), 1.3), math.radians(64), math.radians(150)),
], False)
sketch8.addConstraint([
    Sketcher.Constraint("Tangent", 0, 2, 1, 1),
    Sketcher.Constraint("Tangent", 1, 2, 2, 1),
    Sketcher.Constraint("Tangent", 2, 2, 3, 1),
    Sketcher.Constraint("Tangent", 3, 2, 4, 1),
    Sketcher.Constraint("Tangent", 4, 2, 5, 1),
    Sketcher.Constraint("Tangent", 5, 2, 6, 1),
    Sketcher.Constraint("Tangent", 6, 2, 0, 1),
    Sketcher.Constraint("Coincident", 2, 3, 0, 3),
    Sketcher.Constraint("Coincident", 4, 3, 0, 3),
    Sketcher.Constraint("Horizontal", 6, 3, 3, 2),
    Sketcher.Constraint("Horizontal", 4, 2, 6, 2),
    Sketcher.Constraint("Vertical", 6, 3, 1, 2),
    Sketcher.Constraint("Vertical", 2, 2, 4, 2),
    Sketcher.Constraint("Radius", 0, 1.3),
    Sketcher.Constraint("DistanceY", 0, 3, -1, 1, 5.0),
    Sketcher.Constraint("DistanceY", 2, 2, 4, 2, 1.3),
    Sketcher.Constraint("DistanceX", -1, 1, 5, 2, 9.2357),
    Sketcher.Constraint("DistanceX", -1, 1, 0, 2, 7.938449),
    Sketcher.Constraint("DistanceX", -1, 1, 6, 2, 7.534421),
])
pad8 = body8.newObject("PartDesign::Pad", "Pad007")
pad8.Profile = sketch8
pad8.Length = 8
doc.recompute()

chamfer3 = body8.newObject("PartDesign::Chamfer", "Chamfer002")
chamfer3.Base = (pad8, edges_at(pad8, [(9.549, -4.051, 8)]))
chamfer3.Size = 1

doc.recompute()
